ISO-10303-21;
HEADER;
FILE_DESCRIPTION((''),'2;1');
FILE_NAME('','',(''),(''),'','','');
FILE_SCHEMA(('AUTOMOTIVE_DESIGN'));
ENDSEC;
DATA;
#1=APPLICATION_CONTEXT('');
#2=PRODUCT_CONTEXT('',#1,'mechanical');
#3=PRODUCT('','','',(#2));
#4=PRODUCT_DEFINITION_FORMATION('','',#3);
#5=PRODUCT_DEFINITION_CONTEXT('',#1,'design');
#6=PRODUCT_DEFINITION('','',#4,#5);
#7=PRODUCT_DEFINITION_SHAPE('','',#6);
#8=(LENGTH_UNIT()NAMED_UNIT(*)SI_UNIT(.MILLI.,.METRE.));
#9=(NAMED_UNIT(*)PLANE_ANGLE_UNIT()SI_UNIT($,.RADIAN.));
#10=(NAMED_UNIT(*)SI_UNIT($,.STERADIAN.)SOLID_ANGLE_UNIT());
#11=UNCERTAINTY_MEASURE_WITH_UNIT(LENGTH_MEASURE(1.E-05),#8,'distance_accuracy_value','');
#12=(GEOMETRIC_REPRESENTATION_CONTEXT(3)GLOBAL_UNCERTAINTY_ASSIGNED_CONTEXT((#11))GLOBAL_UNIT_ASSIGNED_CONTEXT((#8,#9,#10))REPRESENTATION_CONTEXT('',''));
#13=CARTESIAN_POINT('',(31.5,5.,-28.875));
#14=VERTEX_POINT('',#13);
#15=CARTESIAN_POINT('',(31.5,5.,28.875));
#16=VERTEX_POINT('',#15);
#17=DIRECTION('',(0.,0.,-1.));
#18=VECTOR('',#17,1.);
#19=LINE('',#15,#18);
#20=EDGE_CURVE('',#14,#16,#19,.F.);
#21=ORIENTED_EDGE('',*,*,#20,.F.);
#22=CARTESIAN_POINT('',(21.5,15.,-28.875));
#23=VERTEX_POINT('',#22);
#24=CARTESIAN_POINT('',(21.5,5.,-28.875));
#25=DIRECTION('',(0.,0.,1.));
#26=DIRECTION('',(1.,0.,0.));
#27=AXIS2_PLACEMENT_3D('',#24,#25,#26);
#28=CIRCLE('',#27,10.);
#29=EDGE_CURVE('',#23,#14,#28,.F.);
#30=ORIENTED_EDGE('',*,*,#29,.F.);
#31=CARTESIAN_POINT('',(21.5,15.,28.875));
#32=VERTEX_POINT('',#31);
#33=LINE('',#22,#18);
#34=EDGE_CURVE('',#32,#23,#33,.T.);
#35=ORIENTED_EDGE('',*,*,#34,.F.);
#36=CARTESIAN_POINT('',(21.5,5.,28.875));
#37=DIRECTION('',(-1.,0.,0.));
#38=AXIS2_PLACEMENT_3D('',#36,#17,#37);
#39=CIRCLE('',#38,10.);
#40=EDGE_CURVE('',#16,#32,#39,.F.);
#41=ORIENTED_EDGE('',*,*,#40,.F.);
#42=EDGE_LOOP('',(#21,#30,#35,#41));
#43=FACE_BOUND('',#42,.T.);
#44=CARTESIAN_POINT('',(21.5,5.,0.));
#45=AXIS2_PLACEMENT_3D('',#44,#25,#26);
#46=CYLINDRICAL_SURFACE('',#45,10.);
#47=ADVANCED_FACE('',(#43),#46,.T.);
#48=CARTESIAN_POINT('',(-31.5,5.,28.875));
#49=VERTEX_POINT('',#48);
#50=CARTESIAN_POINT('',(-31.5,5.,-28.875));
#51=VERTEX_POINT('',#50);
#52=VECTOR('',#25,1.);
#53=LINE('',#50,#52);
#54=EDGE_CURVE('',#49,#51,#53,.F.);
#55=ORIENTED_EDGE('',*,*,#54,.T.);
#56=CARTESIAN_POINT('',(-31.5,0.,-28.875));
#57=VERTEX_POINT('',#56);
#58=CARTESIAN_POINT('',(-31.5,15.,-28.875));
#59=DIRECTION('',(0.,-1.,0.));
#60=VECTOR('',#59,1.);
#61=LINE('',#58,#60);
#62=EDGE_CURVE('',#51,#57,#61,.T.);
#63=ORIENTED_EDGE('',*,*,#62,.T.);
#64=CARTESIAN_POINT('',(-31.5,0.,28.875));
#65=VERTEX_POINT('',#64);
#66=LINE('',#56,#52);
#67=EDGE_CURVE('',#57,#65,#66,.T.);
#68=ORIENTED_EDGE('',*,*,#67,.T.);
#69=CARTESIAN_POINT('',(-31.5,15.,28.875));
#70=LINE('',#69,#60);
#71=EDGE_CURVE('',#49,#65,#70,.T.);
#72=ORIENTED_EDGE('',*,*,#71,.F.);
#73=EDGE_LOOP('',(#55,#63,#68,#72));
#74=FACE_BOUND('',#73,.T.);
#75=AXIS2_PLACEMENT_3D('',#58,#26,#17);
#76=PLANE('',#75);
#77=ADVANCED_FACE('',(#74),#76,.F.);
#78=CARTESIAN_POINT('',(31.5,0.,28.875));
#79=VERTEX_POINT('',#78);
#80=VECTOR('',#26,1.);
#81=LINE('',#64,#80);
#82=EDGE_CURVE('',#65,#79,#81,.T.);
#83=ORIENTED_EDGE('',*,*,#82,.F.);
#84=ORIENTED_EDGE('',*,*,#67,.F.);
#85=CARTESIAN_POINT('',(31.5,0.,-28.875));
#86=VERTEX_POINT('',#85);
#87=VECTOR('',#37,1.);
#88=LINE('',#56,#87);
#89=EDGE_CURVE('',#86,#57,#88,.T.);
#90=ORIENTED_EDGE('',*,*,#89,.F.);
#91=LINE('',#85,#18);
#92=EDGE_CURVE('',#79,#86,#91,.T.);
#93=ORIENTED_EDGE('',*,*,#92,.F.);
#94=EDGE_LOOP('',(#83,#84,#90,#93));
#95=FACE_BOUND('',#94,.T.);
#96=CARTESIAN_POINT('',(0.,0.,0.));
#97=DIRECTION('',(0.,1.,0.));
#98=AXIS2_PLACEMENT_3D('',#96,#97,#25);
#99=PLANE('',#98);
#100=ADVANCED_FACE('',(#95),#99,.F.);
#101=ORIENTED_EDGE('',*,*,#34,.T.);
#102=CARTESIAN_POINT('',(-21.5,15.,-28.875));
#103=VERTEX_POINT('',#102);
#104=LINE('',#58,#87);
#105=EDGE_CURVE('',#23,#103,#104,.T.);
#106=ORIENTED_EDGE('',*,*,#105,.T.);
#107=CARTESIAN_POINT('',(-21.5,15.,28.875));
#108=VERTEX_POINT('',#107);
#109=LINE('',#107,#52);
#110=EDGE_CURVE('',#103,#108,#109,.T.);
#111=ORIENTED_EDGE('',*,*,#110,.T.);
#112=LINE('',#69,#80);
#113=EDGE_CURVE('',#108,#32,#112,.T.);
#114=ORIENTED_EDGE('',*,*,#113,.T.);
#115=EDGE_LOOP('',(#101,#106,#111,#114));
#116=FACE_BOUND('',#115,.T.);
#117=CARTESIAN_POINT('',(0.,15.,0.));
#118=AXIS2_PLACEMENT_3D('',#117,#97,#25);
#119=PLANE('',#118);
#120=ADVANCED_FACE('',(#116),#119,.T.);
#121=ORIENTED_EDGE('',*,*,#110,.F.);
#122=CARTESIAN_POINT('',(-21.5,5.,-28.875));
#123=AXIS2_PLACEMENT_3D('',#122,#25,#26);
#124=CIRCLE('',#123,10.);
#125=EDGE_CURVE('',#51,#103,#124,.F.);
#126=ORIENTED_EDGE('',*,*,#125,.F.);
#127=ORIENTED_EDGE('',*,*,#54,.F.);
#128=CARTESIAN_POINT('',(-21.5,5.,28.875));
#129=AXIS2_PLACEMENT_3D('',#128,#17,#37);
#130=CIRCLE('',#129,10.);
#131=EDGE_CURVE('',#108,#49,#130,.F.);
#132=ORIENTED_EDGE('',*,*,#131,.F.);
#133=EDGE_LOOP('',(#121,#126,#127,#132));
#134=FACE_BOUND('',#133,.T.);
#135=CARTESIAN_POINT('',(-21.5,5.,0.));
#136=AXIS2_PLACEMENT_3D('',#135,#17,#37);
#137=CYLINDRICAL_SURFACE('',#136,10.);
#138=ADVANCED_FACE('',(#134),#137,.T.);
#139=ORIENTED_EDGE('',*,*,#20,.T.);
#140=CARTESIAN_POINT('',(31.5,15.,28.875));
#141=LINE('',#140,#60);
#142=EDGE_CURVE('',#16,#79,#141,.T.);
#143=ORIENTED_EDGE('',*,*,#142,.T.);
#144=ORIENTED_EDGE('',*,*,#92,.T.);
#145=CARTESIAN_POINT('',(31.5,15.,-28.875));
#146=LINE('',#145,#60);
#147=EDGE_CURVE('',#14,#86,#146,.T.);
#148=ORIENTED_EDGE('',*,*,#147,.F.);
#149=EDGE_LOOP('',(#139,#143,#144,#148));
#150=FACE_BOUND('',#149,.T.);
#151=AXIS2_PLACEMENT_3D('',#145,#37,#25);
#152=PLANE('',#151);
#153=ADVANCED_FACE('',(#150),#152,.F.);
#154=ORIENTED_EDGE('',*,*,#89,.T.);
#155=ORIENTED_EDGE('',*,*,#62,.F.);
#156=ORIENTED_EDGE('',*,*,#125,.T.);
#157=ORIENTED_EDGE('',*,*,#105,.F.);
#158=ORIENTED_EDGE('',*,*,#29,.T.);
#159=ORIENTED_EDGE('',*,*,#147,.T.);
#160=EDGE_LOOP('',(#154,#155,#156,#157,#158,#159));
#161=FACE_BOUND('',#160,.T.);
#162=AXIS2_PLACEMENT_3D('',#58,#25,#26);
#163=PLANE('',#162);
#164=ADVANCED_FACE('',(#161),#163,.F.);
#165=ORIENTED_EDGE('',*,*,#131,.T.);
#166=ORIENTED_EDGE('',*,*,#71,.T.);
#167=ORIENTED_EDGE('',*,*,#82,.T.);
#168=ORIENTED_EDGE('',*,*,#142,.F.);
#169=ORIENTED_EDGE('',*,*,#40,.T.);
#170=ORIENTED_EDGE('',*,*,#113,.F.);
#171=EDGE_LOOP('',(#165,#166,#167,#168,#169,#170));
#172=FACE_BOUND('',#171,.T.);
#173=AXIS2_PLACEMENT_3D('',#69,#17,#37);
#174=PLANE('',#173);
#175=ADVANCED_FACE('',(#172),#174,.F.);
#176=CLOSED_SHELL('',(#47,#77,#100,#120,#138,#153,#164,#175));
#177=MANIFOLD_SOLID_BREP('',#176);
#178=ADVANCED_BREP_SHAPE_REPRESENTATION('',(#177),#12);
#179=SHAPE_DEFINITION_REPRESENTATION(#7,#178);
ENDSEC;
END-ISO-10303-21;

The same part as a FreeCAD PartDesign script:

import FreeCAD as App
import Part
import Sketcher
from FreeCAD import Vector


def edges_at(feature, points):
    """Names of the edges that pass closest to the given points."""
    edges = feature.Shape.Edges
    near = lambda p: min(range(len(edges)), key=lambda i: edges[i].distToShape(Part.Vertex(*p))[0])
    return sorted({f"Edge{near(p) + 1}" for p in points})


def add_polygon(sketch, points):
    """Adds a closed chain of lines whose ends are joined by coincident constraints."""
    first, n = sketch.GeometryCount, len(points)
    for a, b in zip(points, points[1:] + points[:1]):
        sketch.addGeometry(Part.LineSegment(App.Vector(*a, 0), App.Vector(*b, 0)), False)
    for i in range(n):
        sketch.addConstraint(Sketcher.Constraint("Coincident", first + i, 2, first + (i + 1) % n, 1))

doc = App.newDocument("Part")
params = doc.addObject("Spreadsheet::Sheet", "Params")
for row, (alias, value) in enumerate([
    ("sketch1_width", "63 mm"),
    ("sketch1_height", "57.75 mm"),
    ("pad1_length", "15 mm"),
    ("fillet_radius", "10 mm"),
], start=1):
    params.set(f"A{row}", alias)
    params.set(f"B{row}", "=" + value)
    params.setAlias(f"B{row}", alias)

body = doc.addObject("PartDesign::Body", "Body")

# Sketch on XZ plane
sketch1 = body.newObject("Sketcher::SketchObject", "Sketch")
sketch1.AttachmentSupport = (doc.getObject("XZ_Plane"), [""])
sketch1.MapMode = "FlatFace"
add_polygon(sketch1, [(-31.5, -28.875), (-31.5, 28.875), (31.5, 28.875), (31.5, -28.875)])  # lines 0-3
sketch1.addConstraint([
    Sketcher.Constraint("Vertical", 0),
    Sketcher.Constraint("Horizontal", 1),
    Sketcher.Constraint("Vertical", 2),
    Sketcher.Constraint("Horizontal", 3),
    Sketcher.Constraint("Symmetric", 0, 2, 2, 2, -1, 1),
    Sketcher.Constraint("DistanceX", 1, 1, 1, 2, 63.0),
    Sketcher.Constraint("DistanceY", 0, 1, 0, 2, 57.75),
])
sketch1.setExpression("Constraints[9]", "Params.sketch1_width")
sketch1.setExpression("Constraints[10]", "Params.sketch1_height")
pad1 = body.newObject("PartDesign::Pad", "Pad")
pad1.Profile = sketch1
pad1.setExpression("Length", "Params.pad1_length")
pad1.Reversed = True
doc.recompute()

fillet = body.newObject("PartDesign::Fillet", "Fillet")
fillet.Base = (pad1, edges_at(pad1, [(-31.5, 15, 0), (31.5, 15, 0)]))
fillet.setExpression("Radius", "Params.fillet_radius")

doc.recompute()
